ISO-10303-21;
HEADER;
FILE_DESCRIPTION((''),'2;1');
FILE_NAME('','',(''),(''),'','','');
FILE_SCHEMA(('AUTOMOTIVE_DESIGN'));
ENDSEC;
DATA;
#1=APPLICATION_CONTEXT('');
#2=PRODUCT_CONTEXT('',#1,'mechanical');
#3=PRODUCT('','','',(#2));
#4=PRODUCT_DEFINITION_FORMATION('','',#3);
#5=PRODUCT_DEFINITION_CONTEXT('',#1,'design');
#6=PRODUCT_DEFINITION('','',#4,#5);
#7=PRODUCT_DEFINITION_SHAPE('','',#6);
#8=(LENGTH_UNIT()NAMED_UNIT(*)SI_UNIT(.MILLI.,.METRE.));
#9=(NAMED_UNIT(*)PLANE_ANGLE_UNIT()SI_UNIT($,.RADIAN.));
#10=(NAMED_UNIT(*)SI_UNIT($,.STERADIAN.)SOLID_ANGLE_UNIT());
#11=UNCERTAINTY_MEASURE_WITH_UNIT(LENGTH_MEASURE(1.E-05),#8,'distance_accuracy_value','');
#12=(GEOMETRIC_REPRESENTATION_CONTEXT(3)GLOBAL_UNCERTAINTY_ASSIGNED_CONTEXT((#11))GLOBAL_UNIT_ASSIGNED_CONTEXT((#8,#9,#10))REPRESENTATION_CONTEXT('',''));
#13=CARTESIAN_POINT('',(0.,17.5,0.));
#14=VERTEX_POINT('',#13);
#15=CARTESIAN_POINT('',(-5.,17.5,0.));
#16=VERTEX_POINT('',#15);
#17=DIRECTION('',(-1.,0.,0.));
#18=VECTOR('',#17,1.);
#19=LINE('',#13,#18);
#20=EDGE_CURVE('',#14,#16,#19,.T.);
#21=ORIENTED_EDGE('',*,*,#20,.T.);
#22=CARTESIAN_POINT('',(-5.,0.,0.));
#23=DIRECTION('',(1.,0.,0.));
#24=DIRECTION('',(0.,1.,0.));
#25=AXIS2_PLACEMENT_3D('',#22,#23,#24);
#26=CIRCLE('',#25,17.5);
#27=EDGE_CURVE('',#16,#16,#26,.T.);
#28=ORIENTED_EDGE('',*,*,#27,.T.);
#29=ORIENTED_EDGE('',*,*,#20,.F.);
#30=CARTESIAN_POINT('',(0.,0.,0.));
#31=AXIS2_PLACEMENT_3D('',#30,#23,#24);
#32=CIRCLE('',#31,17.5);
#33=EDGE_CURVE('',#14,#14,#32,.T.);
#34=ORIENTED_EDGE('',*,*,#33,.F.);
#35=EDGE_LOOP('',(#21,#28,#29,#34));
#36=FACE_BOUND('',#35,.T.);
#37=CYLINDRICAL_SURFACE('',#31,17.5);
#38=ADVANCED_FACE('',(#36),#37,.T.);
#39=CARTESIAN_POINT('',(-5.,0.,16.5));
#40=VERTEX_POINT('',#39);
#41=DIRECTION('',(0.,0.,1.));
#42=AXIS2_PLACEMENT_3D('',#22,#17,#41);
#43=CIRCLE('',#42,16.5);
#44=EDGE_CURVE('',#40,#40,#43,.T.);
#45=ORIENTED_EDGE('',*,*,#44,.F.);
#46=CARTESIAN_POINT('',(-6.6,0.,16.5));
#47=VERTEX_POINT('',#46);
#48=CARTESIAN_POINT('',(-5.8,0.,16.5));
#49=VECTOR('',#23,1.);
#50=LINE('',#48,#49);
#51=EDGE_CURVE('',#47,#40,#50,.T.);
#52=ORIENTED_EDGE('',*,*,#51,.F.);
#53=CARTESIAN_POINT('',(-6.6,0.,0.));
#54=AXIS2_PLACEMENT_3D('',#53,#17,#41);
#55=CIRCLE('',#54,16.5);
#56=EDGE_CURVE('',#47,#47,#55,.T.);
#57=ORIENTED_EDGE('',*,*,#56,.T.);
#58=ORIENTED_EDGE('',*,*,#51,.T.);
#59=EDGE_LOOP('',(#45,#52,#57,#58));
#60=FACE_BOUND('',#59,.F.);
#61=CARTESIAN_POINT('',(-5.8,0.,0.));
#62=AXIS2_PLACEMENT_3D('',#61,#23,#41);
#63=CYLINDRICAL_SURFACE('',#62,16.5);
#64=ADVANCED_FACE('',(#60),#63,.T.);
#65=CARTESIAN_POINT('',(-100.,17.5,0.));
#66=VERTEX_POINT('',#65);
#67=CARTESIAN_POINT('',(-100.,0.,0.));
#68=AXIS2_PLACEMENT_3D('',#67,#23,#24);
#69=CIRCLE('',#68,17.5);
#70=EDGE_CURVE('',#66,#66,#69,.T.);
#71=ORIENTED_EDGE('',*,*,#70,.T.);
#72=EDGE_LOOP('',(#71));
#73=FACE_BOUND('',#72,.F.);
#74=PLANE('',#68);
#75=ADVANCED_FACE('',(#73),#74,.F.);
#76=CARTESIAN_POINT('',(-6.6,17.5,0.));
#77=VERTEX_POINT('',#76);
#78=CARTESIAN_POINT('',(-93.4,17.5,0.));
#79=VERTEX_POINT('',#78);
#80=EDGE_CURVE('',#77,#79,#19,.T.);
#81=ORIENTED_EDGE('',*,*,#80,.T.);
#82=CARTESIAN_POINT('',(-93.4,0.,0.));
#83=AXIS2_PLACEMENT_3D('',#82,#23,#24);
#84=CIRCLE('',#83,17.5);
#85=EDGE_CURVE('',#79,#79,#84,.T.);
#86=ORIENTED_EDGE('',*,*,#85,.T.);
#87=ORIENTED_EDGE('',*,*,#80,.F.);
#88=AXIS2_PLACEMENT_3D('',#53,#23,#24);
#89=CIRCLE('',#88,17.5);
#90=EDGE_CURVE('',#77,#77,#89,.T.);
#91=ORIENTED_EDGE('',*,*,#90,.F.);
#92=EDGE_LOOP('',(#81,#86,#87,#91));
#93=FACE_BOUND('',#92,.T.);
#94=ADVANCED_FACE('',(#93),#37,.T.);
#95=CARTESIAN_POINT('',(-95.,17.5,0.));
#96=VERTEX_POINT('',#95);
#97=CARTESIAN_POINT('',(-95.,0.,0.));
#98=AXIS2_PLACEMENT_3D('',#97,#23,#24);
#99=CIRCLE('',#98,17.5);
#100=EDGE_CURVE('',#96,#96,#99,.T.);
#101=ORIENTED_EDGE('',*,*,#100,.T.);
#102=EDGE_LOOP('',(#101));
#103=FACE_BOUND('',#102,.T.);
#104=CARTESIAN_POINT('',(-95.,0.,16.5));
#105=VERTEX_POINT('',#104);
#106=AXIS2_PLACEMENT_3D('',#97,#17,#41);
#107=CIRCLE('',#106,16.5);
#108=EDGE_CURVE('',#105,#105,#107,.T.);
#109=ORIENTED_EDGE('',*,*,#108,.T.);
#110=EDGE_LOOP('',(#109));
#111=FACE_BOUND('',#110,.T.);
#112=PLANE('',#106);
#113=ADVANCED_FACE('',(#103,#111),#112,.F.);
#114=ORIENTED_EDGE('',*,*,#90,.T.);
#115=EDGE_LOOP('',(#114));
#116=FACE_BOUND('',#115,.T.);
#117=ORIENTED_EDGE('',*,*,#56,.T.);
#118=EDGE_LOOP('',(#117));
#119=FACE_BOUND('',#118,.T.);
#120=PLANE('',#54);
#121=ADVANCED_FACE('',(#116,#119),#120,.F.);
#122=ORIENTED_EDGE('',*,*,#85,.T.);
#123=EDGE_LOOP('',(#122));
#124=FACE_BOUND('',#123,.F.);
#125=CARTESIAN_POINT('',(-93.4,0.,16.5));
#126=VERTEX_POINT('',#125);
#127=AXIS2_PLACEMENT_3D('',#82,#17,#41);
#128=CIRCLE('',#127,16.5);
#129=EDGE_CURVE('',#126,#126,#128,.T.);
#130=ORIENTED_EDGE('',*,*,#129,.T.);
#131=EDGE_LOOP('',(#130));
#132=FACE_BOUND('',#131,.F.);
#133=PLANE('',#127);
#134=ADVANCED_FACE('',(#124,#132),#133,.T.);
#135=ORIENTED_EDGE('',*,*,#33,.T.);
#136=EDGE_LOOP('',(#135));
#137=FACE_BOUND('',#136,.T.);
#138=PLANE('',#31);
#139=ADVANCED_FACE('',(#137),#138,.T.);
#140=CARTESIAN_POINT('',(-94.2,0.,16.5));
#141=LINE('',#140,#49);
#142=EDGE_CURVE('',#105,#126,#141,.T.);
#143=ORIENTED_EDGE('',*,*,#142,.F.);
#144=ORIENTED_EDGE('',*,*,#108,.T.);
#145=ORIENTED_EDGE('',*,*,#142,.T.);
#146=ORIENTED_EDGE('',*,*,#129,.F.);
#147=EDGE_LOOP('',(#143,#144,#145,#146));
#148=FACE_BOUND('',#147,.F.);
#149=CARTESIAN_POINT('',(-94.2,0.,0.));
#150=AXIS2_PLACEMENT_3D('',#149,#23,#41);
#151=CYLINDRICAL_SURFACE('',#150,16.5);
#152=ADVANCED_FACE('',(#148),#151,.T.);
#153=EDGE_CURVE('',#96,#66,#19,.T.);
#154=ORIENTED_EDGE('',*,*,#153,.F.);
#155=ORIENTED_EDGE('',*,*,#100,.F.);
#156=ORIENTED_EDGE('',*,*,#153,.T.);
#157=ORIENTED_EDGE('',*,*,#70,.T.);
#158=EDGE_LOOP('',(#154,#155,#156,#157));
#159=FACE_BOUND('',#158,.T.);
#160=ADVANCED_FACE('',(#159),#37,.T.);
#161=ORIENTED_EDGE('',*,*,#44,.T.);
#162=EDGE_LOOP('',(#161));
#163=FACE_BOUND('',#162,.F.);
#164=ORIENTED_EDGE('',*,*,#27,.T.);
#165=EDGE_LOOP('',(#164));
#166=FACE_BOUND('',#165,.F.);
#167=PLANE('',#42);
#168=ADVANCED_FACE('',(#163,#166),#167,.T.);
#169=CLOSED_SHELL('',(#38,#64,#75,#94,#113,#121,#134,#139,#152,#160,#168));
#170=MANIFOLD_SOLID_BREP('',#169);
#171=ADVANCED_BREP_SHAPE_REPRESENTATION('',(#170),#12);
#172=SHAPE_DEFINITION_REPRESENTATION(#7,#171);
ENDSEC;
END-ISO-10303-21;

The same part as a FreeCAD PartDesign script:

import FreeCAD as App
import Part
import Sketcher


def add_polygon(sketch, points):
    """Adds a closed chain of lines whose ends are joined by coincident constraints."""
    first, n = sketch.GeometryCount, len(points)
    for a, b in zip(points, points[1:] + points[:1]):
        sketch.addGeometry(Part.LineSegment(App.Vector(*a, 0), App.Vector(*b, 0)), False)
    for i in range(n):
        sketch.addConstraint(Sketcher.Constraint("Coincident", first + i, 2, first + (i + 1) % n, 1))

doc = App.newDocument("Part")
body = doc.addObject("PartDesign::Body", "Body")

sketch1 = body.newObject("Sketcher::SketchObject", "Sketch")
sketch1.AttachmentSupport = (doc.getObject("YZ_Plane"), [""])
sketch1.MapMode = "FlatFace"
sketch1.addGeometry(Part.Circle(App.Vector(0, 0, 0), App.Vector(0, 0, 1), 18), False)
sketch1.addConstraint(Sketcher.Constraint("Coincident", 0, 3, -1, 1))
sketch1.addConstraint(Sketcher.Constraint("Diameter", 0, 35.0))
pad1 = body.newObject("PartDesign::Pad", "Pad")
pad1.Profile = sketch1
pad1.Length = 100
pad1.Reversed = True

sketch2 = body.newObject("Sketcher::SketchObject", "Sketch001")
sketch2.AttachmentSupport = (doc.getObject("XZ_Plane"), [""])
sketch2.MapMode = "FlatFace"
add_polygon(sketch2, [(-6.6, 17.5), (-6.6, 16.5), (-5, 16.5), (-5, 17.5)])
add_polygon(sketch2, [(-95, 17.5), (-95, 16.5), (-93.4, 16.5), (-93.4, 17.5)])
sketch2.addConstraint(Sketcher.Constraint("Vertical", 0))
sketch2.addConstraint(Sketcher.Constraint("Horizontal", 1))
sketch2.addConstraint(Sketcher.Constraint("Vertical", 2))
sketch2.addConstraint(Sketcher.Constraint("Horizontal", 3))
sketch2.addConstraint(Sketcher.Constraint("Vertical", 4))
sketch2.addConstraint(Sketcher.Constraint("Horizontal", 5))
sketch2.addConstraint(Sketcher.Constraint("Vertical", 6))
sketch2.addConstraint(Sketcher.Constraint("Horizontal", 7))
sketch2.addConstraint(Sketcher.Constraint("Horizontal", 1, 2, 4, 2))
sketch2.addConstraint(Sketcher.Constraint("Horizontal", 3, 2, 6, 2))
sketch2.addConstraint(Sketcher.Constraint("Equal", 3, 5))
sketch2.addConstraint(Sketcher.Constraint("DistanceY", 0, 2, 0, 1, 1.0))
sketch2.addConstraint(Sketcher.Constraint("DistanceX", 1, 1, 1, 2, 1.6))
sketch2.addConstraint(Sketcher.Constraint("DistanceX", 1, 2, -1, 1, 5.0))
sketch2.addConstraint(Sketcher.Constraint("DistanceX", 4, 2, -1, 1, 95.0))
sketch2.addConstraint(Sketcher.Constraint("DistanceY", -1, 1, 0, 2, 16.5))
groove = body.newObject("PartDesign::Groove", "Groove")
groove.Profile = sketch2
groove.ReferenceAxis = (sketch2, ["H_Axis"])
groove.Angle = 360

doc.recompute()
